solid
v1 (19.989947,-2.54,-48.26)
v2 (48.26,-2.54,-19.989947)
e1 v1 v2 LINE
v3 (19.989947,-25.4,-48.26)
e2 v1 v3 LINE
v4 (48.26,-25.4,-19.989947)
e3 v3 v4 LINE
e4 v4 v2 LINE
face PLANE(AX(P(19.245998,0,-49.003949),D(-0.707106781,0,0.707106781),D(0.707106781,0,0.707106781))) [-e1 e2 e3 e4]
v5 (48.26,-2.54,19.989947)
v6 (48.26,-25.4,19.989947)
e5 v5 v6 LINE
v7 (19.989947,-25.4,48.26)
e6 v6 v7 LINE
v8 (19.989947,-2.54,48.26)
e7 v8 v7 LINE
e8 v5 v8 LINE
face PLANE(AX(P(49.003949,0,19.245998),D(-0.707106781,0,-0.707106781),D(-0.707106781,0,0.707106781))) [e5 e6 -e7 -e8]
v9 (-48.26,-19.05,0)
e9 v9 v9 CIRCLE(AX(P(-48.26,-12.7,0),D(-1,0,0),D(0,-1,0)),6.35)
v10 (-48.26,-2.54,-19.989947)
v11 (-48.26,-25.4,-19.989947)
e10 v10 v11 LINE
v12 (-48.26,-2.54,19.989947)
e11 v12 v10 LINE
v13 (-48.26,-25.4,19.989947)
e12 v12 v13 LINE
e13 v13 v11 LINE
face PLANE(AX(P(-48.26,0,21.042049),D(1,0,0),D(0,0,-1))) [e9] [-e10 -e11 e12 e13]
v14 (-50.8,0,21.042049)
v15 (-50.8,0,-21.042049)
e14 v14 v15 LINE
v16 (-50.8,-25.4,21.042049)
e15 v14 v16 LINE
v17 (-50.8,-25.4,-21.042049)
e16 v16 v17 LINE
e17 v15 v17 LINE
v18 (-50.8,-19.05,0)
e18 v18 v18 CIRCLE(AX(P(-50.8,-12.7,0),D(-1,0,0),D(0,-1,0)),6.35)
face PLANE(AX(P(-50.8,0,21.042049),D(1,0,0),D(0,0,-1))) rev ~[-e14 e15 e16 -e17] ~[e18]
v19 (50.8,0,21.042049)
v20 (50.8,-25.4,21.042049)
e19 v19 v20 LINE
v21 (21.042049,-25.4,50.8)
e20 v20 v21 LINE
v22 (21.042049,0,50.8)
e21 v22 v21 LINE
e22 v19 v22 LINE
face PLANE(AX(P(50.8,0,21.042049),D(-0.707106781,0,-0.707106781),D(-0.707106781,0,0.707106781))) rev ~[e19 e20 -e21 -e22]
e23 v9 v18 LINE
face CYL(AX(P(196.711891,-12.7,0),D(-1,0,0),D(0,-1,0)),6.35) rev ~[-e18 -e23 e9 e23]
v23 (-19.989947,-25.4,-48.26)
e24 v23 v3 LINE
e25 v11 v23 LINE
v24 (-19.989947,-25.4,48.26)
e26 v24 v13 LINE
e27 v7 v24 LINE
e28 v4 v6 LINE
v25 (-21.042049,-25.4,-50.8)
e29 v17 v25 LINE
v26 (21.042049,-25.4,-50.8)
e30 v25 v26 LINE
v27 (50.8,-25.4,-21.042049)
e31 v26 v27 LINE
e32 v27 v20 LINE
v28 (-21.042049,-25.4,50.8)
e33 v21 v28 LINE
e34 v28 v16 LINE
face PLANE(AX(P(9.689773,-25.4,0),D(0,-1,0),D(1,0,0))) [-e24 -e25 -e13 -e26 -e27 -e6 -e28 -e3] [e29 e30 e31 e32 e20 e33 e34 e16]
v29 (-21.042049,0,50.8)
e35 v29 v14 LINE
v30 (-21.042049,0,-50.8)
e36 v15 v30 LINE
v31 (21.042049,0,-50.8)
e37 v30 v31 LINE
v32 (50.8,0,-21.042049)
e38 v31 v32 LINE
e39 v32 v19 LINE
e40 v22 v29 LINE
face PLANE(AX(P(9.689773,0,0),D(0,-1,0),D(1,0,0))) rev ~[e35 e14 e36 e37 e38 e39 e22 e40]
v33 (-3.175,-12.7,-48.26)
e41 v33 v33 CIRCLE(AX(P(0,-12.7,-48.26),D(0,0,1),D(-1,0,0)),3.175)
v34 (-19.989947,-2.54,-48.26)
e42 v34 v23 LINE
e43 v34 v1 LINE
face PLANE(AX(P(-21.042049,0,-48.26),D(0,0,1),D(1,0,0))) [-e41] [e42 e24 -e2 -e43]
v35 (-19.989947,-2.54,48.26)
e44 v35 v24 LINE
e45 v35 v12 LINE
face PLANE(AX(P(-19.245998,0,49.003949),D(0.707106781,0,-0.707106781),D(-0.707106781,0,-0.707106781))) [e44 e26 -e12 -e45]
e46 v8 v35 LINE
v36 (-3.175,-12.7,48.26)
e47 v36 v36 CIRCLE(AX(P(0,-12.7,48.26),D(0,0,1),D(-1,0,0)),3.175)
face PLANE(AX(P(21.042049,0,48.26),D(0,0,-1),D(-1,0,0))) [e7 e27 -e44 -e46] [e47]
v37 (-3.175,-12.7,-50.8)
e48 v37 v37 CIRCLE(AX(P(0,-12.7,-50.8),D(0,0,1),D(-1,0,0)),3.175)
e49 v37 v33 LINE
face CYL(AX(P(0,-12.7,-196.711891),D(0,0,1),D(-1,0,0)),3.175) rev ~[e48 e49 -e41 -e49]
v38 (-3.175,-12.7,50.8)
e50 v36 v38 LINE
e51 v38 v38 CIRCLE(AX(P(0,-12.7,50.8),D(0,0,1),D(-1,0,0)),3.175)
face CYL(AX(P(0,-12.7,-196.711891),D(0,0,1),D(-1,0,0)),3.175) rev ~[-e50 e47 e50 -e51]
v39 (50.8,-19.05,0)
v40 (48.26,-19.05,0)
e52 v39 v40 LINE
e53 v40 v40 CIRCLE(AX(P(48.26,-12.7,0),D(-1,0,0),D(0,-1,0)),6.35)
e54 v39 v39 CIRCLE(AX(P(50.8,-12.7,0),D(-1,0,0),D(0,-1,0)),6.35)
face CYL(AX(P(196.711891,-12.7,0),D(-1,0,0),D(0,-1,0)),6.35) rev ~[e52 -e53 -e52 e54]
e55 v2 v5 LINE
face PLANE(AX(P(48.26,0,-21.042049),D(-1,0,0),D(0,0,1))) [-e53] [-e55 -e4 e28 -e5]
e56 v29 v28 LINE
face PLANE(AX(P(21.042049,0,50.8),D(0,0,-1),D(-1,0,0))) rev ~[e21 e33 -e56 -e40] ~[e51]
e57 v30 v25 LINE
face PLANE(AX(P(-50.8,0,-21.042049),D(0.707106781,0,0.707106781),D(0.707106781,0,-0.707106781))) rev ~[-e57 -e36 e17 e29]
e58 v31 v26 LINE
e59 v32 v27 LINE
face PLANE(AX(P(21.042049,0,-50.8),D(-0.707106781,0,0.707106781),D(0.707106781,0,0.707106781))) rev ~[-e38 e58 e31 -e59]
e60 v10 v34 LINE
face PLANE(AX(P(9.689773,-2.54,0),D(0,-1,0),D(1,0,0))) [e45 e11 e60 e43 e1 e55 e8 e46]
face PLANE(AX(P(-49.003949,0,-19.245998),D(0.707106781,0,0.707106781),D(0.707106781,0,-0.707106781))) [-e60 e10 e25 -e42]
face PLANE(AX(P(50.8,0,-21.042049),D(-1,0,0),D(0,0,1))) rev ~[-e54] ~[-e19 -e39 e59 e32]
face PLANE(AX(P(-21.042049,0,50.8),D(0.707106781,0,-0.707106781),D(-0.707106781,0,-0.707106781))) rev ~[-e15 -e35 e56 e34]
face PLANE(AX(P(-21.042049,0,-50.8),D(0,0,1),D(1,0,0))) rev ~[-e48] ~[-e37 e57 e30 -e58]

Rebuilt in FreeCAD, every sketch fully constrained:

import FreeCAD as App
import Part
import Sketcher
from FreeCAD import Vector
Q = App.Units.Quantity


def faces_at(feature, points):
    """Names of the faces that lie closest to the given points."""
    faces = feature.Shape.Faces
    near = lambda p: min(range(len(faces)), key=lambda i: faces[i].distToShape(Part.Vertex(*p))[0])
    return sorted({f"Face{near(p) + 1}" for p in points})


def add_polygon(sketch, points):
    """Adds a closed chain of lines whose ends are joined by coincident constraints."""
    first, n = sketch.GeometryCount, len(points)
    for a, b in zip(points, points[1:] + points[:1]):
        sketch.addGeometry(Part.LineSegment(App.Vector(*a, 0), App.Vector(*b, 0)), False)
    for i in range(n):
        sketch.addConstraint(Sketcher.Constraint("Coincident", first + i, 2, first + (i + 1) % n, 1))

doc = App.newDocument("Part")
body = doc.addObject("PartDesign::Body", "Body")

# Sketch on XZ plane
sketch1 = body.newObject("Sketcher::SketchObject", "Sketch")
sketch1.AttachmentSupport = (doc.getObject("XZ_Plane"), [""])
sketch1.MapMode = "FlatFace"
add_polygon(sketch1, [(51, -21), (51, 21), (21, 51), (-21, 51), (-51, 21), (-51, -21), (-21, -51), (21, -51)])  # lines 0-7
sketch1.addConstraint([
    Sketcher.Constraint("Vertical", 0),
    Sketcher.Constraint("Horizontal", 2),
    Sketcher.Constraint("Vertical", 4),
    Sketcher.Constraint("Horizontal", 6),
    Sketcher.Constraint("Symmetric", 0, 2, 4, 2, -1, 1),
    Sketcher.Constraint("Symmetric", 1, 2, 5, 2, -1, 1),
    Sketcher.Constraint("Perpendicular", 1, 3),
    Sketcher.Constraint("Perpendicular", 5, 7),
    Sketcher.Constraint("Horizontal", 0, 2, 3, 2),
    Sketcher.Constraint("Horizontal", 4, 2, 7, 2),
    Sketcher.Constraint("Vertical", 2, 2, 5, 2),
    Sketcher.Constraint("Equal", 6, 0),
    Sketcher.Constraint("DistanceX", -1, 1, 0, 2, Q("2 in")),
    Sketcher.Constraint("DistanceX", 2, 2, 2, 1, Q("42.084098 mm")),
])
pad1 = body.newObject("PartDesign::Pad", "Pad")
pad1.Profile = sketch1
pad1.Length = Q("1 in")
doc.recompute()

thickness = body.newObject("PartDesign::Thickness", "Thickness")
thickness.Base = (pad1, faces_at(pad1, [(0, -25.4, 0)]))
thickness.Value = Q("0.1 in")
thickness.Reversed = True
thickness.Join = "Arc"

# Sketch on XY plane
sketch2 = body.newObject("Sketcher::SketchObject", "Sketch001")
sketch2.AttachmentSupport = (doc.getObject("XY_Plane"), [""])
sketch2.MapMode = "FlatFace"
sketch2.AttachmentOffset = App.Placement(Vector(0, 0, -2 * 25.4), App.Rotation())
sketch2.addGeometry(Part.Circle(Vector(0, -12.7, 0), Vector(0, 0, 1), 3.2), False)
sketch2.addConstraint([
    Sketcher.Constraint("PointOnObject", 0, 3, -2),
    Sketcher.Constraint("Diameter", 0, Q("0.25 in")),
    Sketcher.Constraint("DistanceY", 0, 3, -1, 1, Q("0.5 in")),
])
doc.recompute()
hole = body.newObject("PartDesign::Hole", "Hole")
hole.Profile = sketch2
hole.ThreadType = "None"
hole.Diameter = Q("0.25 in")
hole.DepthType = "ThroughAll"
hole.Reversed = True

# Sketch on YZ plane
sketch3 = body.newObject("Sketcher::SketchObject", "Sketch002")
sketch3.AttachmentSupport = (doc.getObject("YZ_Plane"), [""])
sketch3.MapMode = "FlatFace"
sketch3.AttachmentOffset = App.Placement(Vector(0, 0, 2 * 25.4), App.Rotation())
sketch3.addGeometry(Part.Circle(Vector(-13, 0, 0), Vector(0, 0, 1), 6), False)
sketch3.addConstraint([
    Sketcher.Constraint("PointOnObject", 0, 3, -1),
    Sketcher.Constraint("Diameter", 0, Q("0.5 in")),
    Sketcher.Constraint("DistanceX", 0, 3, -1, 1, Q("0.5 in")),
])
doc.recompute()
hole2 = body.newObject("PartDesign::Hole", "Hole001")
hole2.Profile = sketch3
hole2.ThreadType = "None"
hole2.Diameter = Q("0.5 in")
hole2.DepthType = "ThroughAll"

doc.recompute()
